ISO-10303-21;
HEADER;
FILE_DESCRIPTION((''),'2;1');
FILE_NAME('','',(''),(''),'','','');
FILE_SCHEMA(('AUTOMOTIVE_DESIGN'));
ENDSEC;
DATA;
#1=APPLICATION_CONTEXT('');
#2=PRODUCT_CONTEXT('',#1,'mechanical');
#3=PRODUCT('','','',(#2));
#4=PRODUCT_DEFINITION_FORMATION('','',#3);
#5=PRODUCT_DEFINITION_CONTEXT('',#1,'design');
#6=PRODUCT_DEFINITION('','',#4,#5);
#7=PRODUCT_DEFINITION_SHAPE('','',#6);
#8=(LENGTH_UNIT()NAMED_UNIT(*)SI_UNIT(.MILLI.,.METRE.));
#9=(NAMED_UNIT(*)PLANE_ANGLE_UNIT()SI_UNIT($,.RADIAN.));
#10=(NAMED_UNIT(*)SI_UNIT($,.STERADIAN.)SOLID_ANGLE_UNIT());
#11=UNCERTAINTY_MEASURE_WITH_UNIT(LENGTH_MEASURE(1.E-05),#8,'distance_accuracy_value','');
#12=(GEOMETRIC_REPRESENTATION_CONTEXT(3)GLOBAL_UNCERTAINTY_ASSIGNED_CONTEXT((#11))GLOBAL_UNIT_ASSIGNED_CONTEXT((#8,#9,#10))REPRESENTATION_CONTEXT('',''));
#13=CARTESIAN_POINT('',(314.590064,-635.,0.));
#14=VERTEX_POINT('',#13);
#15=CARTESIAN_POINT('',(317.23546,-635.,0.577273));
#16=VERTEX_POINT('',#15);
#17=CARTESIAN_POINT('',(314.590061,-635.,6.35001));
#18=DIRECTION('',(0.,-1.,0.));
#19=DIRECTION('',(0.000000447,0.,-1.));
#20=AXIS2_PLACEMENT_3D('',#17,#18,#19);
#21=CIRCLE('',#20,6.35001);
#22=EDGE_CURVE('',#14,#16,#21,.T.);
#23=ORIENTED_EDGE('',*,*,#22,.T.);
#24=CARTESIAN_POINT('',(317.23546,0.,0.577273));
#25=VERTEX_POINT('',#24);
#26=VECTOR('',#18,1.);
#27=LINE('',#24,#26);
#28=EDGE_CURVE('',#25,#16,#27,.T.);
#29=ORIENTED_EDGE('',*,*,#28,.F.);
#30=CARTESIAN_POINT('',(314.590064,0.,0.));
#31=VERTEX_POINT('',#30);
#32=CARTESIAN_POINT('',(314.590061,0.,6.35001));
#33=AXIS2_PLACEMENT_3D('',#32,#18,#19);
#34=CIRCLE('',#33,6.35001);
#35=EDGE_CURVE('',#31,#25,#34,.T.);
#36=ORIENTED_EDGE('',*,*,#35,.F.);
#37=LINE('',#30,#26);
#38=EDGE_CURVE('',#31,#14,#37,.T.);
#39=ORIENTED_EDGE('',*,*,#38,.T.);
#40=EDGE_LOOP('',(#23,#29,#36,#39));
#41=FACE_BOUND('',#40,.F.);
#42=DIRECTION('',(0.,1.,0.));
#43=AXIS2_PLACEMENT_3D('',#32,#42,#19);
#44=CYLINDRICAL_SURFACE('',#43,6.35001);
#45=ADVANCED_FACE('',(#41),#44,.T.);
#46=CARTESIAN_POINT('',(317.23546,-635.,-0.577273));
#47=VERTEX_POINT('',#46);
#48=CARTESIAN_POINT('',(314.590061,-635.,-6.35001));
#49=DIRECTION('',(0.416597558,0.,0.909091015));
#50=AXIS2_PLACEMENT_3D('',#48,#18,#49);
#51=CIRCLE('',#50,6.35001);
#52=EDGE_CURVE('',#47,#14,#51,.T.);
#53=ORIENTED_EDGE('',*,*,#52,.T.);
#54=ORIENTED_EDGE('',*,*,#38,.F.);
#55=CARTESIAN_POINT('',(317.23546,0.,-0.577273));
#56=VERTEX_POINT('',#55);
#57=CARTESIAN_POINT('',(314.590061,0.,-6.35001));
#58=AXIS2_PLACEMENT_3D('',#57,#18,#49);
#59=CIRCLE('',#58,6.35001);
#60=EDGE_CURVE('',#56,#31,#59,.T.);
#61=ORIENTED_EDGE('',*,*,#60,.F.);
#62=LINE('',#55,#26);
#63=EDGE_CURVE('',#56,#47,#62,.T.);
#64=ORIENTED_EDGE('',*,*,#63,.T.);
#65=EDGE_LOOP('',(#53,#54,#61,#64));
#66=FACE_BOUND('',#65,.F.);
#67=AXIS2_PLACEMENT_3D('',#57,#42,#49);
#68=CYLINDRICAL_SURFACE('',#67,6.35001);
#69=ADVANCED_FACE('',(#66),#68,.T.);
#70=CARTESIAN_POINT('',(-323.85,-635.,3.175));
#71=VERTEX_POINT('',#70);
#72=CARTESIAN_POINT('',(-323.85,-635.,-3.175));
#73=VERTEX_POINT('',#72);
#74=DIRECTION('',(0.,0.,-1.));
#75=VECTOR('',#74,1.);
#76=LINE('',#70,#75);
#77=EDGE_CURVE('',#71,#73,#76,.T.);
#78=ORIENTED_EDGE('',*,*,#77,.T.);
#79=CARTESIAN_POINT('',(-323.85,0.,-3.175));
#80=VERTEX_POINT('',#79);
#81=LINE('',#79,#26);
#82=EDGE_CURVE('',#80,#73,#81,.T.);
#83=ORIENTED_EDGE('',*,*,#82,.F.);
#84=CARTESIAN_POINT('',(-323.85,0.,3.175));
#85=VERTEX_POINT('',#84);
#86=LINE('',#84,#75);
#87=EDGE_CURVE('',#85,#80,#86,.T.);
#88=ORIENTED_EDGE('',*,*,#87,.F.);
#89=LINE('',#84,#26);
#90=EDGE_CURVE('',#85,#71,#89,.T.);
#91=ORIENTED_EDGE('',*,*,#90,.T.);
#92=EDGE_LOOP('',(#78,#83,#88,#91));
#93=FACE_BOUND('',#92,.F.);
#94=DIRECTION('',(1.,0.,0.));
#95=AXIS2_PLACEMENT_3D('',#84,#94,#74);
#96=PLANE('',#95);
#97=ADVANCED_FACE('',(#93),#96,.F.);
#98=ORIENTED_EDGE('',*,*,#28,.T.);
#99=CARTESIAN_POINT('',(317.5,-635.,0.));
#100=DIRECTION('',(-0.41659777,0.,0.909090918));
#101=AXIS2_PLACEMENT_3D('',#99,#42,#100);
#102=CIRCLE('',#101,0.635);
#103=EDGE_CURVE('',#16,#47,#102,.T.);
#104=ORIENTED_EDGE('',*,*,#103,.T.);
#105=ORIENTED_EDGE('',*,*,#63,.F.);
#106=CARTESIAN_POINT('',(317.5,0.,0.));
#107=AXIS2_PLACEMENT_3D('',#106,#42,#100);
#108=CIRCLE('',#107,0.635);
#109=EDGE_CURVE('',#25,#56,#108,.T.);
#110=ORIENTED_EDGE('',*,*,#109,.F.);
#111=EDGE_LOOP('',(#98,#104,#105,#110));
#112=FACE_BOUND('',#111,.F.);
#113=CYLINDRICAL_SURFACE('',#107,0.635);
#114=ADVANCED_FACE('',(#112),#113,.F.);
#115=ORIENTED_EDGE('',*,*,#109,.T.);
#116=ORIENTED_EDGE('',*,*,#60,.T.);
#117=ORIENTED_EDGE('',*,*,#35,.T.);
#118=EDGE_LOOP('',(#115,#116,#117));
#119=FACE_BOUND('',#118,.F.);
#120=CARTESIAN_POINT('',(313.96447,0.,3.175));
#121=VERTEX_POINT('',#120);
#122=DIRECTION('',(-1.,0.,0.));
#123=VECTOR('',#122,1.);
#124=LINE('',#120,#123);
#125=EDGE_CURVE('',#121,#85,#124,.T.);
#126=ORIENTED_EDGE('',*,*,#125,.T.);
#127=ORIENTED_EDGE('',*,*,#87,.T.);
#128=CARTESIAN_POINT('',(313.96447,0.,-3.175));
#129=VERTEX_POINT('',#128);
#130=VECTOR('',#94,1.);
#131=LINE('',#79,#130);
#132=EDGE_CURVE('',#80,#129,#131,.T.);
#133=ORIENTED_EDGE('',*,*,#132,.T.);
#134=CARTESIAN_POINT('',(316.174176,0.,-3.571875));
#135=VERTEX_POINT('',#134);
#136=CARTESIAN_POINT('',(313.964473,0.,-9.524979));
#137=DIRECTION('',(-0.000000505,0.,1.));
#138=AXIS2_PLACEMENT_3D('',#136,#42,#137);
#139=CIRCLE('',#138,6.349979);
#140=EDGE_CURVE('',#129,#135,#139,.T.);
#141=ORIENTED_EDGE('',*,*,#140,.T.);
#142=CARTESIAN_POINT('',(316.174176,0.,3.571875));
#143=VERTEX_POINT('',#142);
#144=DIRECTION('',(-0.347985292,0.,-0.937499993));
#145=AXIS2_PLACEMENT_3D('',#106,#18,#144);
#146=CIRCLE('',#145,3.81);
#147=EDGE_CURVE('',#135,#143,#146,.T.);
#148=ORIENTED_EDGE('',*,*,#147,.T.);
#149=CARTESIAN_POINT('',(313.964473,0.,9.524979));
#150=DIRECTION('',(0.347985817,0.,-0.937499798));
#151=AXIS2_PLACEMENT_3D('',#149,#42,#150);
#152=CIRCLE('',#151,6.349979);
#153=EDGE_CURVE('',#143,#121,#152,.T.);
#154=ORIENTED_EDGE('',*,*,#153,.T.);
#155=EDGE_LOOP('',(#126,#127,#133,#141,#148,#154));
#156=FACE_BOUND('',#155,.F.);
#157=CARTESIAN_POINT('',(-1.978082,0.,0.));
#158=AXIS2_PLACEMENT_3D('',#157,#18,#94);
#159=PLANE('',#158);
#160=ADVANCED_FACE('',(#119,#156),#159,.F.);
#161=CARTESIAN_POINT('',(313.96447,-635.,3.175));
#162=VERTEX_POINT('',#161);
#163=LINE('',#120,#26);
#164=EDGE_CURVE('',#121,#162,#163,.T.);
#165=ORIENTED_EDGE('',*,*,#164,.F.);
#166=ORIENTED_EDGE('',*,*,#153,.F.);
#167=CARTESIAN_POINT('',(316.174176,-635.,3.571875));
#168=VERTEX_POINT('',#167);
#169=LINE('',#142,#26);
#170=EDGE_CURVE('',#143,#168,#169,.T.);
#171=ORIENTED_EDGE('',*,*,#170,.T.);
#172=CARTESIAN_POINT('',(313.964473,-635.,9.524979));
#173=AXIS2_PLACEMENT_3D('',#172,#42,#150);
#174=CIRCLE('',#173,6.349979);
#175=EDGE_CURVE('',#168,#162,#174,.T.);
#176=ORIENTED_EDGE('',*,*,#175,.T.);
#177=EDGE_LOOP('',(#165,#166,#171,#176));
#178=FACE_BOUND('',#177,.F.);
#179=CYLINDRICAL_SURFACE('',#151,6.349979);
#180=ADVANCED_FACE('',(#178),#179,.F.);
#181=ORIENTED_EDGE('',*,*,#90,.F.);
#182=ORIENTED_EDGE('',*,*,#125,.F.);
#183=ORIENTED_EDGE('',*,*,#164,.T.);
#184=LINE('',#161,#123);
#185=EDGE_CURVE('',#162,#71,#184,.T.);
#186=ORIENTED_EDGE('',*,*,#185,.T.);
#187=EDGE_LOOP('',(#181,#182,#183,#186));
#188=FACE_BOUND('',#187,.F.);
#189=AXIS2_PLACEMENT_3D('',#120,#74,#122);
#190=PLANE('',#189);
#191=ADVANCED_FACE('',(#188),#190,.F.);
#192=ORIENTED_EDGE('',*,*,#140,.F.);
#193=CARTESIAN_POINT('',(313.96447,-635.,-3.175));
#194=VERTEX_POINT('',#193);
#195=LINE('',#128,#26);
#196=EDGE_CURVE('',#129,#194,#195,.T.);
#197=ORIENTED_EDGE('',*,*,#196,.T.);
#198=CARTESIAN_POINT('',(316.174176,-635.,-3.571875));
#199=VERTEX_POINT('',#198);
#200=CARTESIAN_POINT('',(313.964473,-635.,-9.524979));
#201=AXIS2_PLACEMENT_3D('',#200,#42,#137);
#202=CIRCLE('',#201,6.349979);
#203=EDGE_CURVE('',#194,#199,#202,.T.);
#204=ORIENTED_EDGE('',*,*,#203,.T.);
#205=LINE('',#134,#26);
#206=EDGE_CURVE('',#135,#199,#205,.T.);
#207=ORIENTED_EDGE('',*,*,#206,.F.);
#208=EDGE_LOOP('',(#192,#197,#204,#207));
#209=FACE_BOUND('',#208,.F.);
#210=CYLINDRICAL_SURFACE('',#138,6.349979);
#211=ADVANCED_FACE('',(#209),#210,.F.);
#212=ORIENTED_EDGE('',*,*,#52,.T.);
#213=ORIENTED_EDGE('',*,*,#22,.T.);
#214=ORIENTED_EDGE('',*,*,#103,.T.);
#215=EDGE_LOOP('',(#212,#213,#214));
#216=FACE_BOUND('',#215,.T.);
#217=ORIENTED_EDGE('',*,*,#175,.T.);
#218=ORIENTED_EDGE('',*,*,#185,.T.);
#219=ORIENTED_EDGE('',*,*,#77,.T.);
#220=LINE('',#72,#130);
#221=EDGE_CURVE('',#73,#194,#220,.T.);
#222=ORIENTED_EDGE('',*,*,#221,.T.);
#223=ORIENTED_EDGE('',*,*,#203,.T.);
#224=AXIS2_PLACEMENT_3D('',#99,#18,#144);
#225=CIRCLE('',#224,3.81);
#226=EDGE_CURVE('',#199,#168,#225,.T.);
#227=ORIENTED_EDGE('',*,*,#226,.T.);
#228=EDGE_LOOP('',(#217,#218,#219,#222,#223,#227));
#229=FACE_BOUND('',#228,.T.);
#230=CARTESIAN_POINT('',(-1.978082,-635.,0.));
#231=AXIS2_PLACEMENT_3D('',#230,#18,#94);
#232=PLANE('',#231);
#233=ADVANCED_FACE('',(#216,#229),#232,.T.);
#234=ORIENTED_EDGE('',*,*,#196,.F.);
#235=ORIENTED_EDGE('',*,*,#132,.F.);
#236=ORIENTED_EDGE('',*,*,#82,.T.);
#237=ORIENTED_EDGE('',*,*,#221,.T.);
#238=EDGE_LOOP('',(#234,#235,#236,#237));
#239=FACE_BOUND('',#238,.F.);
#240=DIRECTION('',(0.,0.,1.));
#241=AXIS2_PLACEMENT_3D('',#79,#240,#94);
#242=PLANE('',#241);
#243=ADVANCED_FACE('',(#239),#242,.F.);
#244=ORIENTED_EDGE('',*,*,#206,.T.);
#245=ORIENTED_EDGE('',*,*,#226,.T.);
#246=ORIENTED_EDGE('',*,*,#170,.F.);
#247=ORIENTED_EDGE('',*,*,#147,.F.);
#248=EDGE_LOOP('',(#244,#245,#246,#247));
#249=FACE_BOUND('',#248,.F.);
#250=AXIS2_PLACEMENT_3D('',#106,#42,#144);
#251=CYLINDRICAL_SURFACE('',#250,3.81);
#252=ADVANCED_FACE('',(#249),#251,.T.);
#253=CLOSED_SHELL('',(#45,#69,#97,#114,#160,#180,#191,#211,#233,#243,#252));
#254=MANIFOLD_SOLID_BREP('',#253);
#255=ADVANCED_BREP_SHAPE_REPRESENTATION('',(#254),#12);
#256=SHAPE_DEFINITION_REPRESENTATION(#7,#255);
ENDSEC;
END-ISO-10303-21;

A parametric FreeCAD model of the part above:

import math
import FreeCAD as App
import Part
import Sketcher
Q = App.Units.Quantity

doc = App.newDocument("Part")
body = doc.addObject("PartDesign::Body", "Body")

# Sketch on XZ plane
sketch1 = doc.addObject("Sketcher::SketchObject", "Sketch")
body.addObject(sketch1)
sketch1.AttachmentSupport = (doc.XZ_Plane, [""])
sketch1.MapMode = "FlatFace"
sketch1.addGeometry(Part.ArcOfCircle(Part.Circle(App.Vector(313.964473, -9.524979, 0), App.Vector(0, 0, 1), 6.349979), math.radians(69.635832), math.radians(90.000029)), False)
sketch1.addGeometry(Part.ArcOfCircle(Part.Circle(App.Vector(317.5, 0, 0), App.Vector(0, 0, 1), 3.81), math.radians(-110.364136), math.radians(110.364136)), False)
sketch1.addGeometry(Part.ArcOfCircle(Part.Circle(App.Vector(313.964473, 9.524979, 0), App.Vector(0, 0, 1), 6.349979), math.radians(-90.000029), math.radians(-69.635832)), False)
sketch1.addGeometry(Part.LineSegment(App.Vector(313.96447, 3.175, 0), App.Vector(-323.85, 3.175, 0)), False)
sketch1.addGeometry(Part.LineSegment(App.Vector(-323.85, 3.175, 0), App.Vector(-323.85, -3.175, 0)), False)
sketch1.addGeometry(Part.LineSegment(App.Vector(-323.85, -3.175, 0), App.Vector(313.96447, -3.175, 0)), False)
sketch1.addGeometry(Part.ArcOfCircle(Part.Circle(App.Vector(317.5, 0, 0), App.Vector(0, 0, 1), 0.635), math.radians(-114.619976), math.radians(114.619976)), False)
sketch1.addGeometry(Part.ArcOfCircle(Part.Circle(App.Vector(314.590061, -6.35001, 0), App.Vector(0, 0, 1), 6.35001), math.radians(65.380037), math.radians(89.999974)), False)
sketch1.addGeometry(Part.ArcOfCircle(Part.Circle(App.Vector(314.590061, 6.35001, 0), App.Vector(0, 0, 1), 6.35001), math.radians(-89.999974), math.radians(-65.380037)), False)
sketch1.addConstraint(Sketcher.Constraint("Coincident", 0, 1, 1, 1))
sketch1.addConstraint(Sketcher.Constraint("Coincident", 1, 2, 2, 2))
sketch1.addConstraint(Sketcher.Constraint("Coincident", 2, 1, 3, 1))
sketch1.addConstraint(Sketcher.Constraint("Coincident", 3, 2, 4, 1))
sketch1.addConstraint(Sketcher.Constraint("Coincident", 4, 2, 5, 1))
sketch1.addConstraint(Sketcher.Constraint("Coincident", 5, 2, 0, 2))
sketch1.addConstraint(Sketcher.Constraint("Coincident", 6, 1, 7, 1))
sketch1.addConstraint(Sketcher.Constraint("Coincident", 7, 2, 8, 1))
sketch1.addConstraint(Sketcher.Constraint("Coincident", 8, 2, 6, 2))
sketch1.addConstraint(Sketcher.Constraint("Horizontal", 3))
sketch1.addConstraint(Sketcher.Constraint("Vertical", 4))
sketch1.addConstraint(Sketcher.Constraint("Horizontal", 5))
sketch1.addConstraint(Sketcher.Constraint("Coincident", 6, 3, 1, 3))
sketch1.addConstraint(Sketcher.Constraint("PointOnObject", 1, 3, -1))
sketch1.addConstraint(Sketcher.Constraint("PointOnObject", 7, 2, -1))
sketch1.addConstraint(Sketcher.Constraint("Radius", 1, Q("0.15 in")))
sketch1.addConstraint(Sketcher.Constraint("Radius", 6, Q("0.025 in")))
sketch1.addConstraint(Sketcher.Constraint("DistanceY", 4, 2, 4, 1, Q("0.25 in")))
sketch1.addConstraint(Sketcher.Constraint("DistanceX", -1, 1, 1, 3, Q("12.5 in")))
sketch1.addConstraint(Sketcher.Constraint("DistanceX", 3, 2, -1, 1, Q("12.75 in")))
sketch1.addConstraint(Sketcher.Constraint("DistanceY", 0, 1, -1, 1, Q("0.140625 in")))
sketch1.addConstraint(Sketcher.Constraint("DistanceY", -1, 1, 1, 2, Q("0.140625 in")))
sketch1.addConstraint(Sketcher.Constraint("DistanceY", -1, 1, 2, 1, Q("0.125 in")))
sketch1.addConstraint(Sketcher.Constraint("Radius", 0, Q("6.349979 mm")))
sketch1.addConstraint(Sketcher.Constraint("Radius", 2, Q("6.349979 mm")))
sketch1.addConstraint(Sketcher.Constraint("Radius", 7, Q("6.35001 mm")))
sketch1.addConstraint(Sketcher.Constraint("Radius", 8, Q("6.35001 mm")))
sketch1.addConstraint(Sketcher.Constraint("DistanceX", 3, 2, 3, 1, Q("637.81447 mm")))
sketch1.addConstraint(Sketcher.Constraint("DistanceX", 5, 1, 5, 2, Q("637.81447 mm")))
sketch1.addConstraint(Sketcher.Constraint("DistanceY", 0, 1, 6, 1, Q("2.994602 mm")))
sketch1.addConstraint(Sketcher.Constraint("DistanceX", -1, 1, 8, 2, Q("317.23546 mm")))
sketch1.addConstraint(Sketcher.Constraint("DistanceX", -1, 1, 7, 2, Q("314.590064 mm")))
pad1 = doc.addObject("PartDesign::Pad", "Pad")
body.addObject(pad1)
pad1.Profile = sketch1
pad1.Length = Q("25 in")

doc.recompute()
